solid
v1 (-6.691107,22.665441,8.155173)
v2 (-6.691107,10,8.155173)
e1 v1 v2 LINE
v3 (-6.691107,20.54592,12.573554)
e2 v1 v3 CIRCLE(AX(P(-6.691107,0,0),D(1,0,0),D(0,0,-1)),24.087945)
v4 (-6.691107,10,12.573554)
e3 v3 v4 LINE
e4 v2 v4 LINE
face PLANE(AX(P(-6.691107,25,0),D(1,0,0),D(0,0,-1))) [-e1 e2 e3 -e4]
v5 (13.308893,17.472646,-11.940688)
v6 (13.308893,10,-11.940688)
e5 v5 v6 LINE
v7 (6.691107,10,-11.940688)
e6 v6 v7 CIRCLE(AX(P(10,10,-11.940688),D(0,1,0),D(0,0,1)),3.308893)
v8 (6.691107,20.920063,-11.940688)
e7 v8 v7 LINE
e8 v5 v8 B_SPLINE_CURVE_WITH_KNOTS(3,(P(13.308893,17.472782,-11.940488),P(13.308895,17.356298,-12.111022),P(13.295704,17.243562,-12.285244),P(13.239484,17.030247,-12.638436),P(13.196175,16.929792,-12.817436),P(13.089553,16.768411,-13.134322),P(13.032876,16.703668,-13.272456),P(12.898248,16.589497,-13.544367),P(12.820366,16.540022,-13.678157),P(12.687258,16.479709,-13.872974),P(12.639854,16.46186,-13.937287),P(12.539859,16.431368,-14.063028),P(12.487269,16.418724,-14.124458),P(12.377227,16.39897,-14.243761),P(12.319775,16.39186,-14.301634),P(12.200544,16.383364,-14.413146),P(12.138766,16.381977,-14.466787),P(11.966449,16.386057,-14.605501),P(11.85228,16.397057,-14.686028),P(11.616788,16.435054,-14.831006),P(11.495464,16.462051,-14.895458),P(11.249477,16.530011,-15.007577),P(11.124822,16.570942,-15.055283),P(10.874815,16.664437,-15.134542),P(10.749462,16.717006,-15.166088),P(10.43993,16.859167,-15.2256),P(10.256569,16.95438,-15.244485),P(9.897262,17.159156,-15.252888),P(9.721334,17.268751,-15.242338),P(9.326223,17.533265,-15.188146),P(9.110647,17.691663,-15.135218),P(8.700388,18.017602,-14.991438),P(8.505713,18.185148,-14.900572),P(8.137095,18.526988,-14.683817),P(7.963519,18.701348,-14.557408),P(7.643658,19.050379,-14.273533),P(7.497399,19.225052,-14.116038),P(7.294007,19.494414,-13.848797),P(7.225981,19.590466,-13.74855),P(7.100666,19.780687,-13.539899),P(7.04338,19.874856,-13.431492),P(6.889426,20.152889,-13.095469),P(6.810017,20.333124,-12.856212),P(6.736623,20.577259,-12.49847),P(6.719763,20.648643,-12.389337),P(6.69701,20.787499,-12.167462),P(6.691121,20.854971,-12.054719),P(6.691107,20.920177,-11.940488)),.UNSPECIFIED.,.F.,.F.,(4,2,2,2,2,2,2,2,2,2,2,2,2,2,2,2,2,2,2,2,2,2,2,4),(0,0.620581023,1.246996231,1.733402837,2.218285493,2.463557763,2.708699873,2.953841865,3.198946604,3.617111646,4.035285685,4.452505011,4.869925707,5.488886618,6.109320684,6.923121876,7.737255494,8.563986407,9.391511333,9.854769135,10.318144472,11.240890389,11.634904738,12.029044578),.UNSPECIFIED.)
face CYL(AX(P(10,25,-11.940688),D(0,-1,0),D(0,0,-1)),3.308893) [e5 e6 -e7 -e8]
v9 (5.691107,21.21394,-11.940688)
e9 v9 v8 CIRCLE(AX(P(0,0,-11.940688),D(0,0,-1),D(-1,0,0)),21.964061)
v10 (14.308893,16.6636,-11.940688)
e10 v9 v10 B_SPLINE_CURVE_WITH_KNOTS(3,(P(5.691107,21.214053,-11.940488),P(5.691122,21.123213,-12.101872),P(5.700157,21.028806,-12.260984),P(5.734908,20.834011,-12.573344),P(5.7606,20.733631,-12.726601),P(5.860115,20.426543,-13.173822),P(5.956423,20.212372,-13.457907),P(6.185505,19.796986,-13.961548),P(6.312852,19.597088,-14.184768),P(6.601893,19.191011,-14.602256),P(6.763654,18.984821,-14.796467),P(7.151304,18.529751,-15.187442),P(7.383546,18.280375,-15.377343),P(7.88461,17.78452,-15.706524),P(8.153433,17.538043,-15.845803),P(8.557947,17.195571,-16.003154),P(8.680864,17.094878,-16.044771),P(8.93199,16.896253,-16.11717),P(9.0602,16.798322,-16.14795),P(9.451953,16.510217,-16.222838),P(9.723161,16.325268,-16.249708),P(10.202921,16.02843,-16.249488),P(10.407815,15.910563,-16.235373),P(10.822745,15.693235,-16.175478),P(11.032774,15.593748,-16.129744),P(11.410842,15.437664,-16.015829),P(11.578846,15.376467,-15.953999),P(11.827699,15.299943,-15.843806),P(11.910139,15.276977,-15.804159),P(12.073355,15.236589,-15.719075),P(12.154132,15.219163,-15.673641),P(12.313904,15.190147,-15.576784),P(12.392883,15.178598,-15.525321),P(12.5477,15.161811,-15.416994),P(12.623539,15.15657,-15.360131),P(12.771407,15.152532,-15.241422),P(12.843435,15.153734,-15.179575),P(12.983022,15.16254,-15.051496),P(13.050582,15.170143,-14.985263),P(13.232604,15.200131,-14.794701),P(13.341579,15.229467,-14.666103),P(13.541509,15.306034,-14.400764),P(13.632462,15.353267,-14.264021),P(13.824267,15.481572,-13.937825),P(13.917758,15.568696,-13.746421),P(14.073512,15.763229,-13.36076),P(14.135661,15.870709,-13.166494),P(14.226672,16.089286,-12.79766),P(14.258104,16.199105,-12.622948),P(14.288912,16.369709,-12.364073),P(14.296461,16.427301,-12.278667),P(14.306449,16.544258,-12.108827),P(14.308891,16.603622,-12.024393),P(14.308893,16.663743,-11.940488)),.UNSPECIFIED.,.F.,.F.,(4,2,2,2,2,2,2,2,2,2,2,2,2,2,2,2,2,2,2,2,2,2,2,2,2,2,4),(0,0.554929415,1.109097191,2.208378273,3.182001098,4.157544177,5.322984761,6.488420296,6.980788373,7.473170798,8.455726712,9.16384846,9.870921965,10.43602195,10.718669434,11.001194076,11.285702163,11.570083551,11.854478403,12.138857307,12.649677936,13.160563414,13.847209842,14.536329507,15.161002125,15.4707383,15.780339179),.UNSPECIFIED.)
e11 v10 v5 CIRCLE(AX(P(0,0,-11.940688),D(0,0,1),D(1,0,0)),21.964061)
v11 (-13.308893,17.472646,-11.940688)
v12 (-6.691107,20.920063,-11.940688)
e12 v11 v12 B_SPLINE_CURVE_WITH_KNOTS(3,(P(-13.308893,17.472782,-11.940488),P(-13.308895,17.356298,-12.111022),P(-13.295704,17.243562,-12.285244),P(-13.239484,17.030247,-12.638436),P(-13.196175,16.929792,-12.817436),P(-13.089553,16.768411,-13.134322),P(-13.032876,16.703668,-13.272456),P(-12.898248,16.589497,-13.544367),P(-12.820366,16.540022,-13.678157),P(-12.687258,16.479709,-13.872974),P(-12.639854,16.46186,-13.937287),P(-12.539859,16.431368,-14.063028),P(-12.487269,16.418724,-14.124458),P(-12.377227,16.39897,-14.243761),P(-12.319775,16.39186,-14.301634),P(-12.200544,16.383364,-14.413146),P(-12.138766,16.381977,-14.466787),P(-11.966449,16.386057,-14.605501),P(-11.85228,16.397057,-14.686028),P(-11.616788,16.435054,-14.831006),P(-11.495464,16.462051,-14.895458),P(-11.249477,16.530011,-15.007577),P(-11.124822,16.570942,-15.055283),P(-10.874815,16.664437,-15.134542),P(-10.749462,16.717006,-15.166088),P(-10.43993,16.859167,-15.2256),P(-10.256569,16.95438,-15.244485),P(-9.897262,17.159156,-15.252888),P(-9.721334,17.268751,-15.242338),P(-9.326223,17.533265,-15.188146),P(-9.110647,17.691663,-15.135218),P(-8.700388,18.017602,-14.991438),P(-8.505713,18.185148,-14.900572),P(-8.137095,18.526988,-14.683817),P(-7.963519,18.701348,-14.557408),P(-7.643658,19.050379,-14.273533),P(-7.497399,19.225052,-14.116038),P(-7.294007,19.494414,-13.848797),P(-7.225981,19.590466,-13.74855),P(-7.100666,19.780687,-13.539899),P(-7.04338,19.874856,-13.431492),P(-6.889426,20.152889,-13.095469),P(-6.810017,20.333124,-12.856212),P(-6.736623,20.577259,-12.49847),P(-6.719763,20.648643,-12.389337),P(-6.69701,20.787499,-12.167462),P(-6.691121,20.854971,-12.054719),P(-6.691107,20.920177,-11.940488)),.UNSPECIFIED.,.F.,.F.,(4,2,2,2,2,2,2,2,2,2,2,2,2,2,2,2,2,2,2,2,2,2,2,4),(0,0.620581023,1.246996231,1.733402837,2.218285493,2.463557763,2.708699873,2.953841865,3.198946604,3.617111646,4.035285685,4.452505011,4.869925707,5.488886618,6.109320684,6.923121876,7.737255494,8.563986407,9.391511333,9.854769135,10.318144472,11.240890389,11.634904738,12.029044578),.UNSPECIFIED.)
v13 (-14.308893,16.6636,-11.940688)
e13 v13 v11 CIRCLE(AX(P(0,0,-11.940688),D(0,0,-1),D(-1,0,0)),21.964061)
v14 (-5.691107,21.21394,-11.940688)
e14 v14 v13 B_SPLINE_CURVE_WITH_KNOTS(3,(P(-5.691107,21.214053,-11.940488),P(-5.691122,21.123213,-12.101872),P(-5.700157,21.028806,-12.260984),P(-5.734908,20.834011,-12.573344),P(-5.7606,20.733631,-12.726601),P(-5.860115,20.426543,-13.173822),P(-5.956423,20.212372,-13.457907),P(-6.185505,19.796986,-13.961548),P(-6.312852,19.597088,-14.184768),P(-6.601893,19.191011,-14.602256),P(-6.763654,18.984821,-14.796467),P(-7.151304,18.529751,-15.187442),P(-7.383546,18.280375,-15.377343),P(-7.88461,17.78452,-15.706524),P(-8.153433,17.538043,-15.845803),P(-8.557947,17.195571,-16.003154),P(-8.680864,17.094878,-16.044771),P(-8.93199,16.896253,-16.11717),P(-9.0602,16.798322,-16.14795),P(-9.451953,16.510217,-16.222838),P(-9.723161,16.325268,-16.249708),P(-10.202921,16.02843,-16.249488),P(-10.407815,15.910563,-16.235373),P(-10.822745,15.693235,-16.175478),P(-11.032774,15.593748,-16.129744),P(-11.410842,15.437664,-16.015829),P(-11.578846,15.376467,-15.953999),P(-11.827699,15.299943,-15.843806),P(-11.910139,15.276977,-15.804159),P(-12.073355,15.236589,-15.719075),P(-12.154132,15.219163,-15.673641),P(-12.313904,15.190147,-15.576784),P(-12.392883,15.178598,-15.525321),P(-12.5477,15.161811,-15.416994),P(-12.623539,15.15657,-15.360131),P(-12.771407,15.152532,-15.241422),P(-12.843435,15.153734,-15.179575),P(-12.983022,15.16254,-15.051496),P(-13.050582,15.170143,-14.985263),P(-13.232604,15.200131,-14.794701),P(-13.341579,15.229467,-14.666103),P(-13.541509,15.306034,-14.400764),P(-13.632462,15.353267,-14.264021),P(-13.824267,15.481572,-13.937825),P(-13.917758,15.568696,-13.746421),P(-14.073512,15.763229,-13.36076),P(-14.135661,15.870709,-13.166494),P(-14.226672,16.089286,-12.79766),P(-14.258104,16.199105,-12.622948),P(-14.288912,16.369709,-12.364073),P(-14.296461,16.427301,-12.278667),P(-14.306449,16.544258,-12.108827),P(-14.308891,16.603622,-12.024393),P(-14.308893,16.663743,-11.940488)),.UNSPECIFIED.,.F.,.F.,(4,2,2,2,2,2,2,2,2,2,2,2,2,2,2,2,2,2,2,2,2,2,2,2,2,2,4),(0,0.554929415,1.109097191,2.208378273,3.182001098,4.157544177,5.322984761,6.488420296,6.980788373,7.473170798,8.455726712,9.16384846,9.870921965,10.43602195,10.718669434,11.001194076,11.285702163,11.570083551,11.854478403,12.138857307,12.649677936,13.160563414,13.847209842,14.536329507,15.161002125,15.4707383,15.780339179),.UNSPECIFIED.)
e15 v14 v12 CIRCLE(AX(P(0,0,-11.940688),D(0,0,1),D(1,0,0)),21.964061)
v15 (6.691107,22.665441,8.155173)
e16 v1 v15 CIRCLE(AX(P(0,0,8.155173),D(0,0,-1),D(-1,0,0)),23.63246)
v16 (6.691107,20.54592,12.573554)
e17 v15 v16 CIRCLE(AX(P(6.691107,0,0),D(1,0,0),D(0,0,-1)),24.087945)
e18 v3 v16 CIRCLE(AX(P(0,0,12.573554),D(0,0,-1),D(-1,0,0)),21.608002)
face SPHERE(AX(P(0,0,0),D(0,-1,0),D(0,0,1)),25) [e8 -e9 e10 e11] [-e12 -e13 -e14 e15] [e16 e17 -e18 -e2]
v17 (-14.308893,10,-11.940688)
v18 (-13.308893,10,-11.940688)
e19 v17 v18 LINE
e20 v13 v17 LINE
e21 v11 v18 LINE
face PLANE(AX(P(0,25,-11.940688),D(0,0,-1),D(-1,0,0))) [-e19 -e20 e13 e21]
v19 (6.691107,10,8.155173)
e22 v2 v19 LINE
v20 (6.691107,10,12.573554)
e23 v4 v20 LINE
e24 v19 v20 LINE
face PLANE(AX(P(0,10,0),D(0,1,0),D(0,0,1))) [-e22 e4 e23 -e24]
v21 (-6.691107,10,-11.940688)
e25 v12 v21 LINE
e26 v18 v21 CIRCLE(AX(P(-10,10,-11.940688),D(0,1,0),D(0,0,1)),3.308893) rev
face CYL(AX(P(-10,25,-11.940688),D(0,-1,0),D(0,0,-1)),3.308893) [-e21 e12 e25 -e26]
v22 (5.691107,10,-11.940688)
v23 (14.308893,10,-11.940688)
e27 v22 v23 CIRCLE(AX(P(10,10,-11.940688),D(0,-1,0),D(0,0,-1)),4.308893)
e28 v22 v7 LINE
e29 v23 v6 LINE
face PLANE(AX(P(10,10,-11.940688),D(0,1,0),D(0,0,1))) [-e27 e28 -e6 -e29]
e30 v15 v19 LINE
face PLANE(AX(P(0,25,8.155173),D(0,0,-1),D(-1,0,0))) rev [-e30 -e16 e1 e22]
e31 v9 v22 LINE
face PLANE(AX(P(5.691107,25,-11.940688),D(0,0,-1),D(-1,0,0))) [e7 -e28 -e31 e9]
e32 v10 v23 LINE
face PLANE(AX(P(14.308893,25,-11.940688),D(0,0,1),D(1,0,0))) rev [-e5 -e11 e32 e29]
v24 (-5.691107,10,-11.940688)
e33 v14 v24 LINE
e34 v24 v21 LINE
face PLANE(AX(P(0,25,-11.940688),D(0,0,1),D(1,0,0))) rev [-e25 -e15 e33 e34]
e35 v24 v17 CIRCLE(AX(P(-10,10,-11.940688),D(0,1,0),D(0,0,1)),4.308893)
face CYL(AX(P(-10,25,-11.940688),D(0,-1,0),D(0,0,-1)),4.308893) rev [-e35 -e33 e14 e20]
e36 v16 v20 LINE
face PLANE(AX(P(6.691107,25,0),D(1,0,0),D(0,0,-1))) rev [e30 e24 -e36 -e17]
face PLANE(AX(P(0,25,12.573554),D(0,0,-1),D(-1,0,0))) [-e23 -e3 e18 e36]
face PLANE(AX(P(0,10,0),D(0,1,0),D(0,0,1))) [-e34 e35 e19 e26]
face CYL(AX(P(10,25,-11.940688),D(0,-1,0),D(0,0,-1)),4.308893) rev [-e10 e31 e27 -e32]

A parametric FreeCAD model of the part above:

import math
import FreeCAD as App
import Part
import Sketcher

doc = App.newDocument("Part")
params = doc.addObject("Spreadsheet::Sheet", "Params")
for row, (alias, value) in enumerate([
    ("sketch1_radius", "25 mm"),
    ("revolution_angle", "360 deg"),
    ("sketch2_width", "1 mm"),
], start=1):
    params.set(f"A{row}", alias)
    params.set(f"B{row}", "=" + value)
    params.setAlias(f"B{row}", alias)

body = doc.addObject("PartDesign::Body", "Body")

sketch1 = body.newObject("Sketcher::SketchObject", "Sketch")
sketch1.AttachmentSupport = (doc.getObject("YZ_Plane"), [""])
sketch1.MapMode = "FlatFace"
sketch1.addGeometry([
    Part.LineSegment(App.Vector(-25, 0, 0), App.Vector(25, 0, 0)),
    Part.ArcOfCircle(Part.Circle(App.Vector(0, 0, 0), App.Vector(0, 0, 1), 25), math.radians(0), math.radians(180)),
], False)
sketch1.addConstraint([
    Sketcher.Constraint("Coincident", 0, 1, 1, 2),
    Sketcher.Constraint("Coincident", 1, 1, 0, 2),
    Sketcher.Constraint("Horizontal", 0),
    Sketcher.Constraint("Coincident", 1, 3, -1, 1),
    Sketcher.Constraint("PointOnObject", 0, 1, -1),
    Sketcher.Constraint("Radius", 1, 25.0),
])
sketch1.setExpression("Constraints[5]", "Params.sketch1_radius")
revolution = body.newObject("PartDesign::Revolution", "Revolution")
revolution.Profile = sketch1
revolution.ReferenceAxis = (sketch1, ["H_Axis"])
revolution.setExpression("Angle", "Params.revolution_angle")

sketch2 = body.newObject("Sketcher::SketchObject", "Sketch001")
sketch2.AttachmentSupport = (doc.getObject("XZ_Plane"), [""])
sketch2.MapMode = "FlatFace"
sketch2.AttachmentOffset = App.Placement(App.Vector(0, 0, -10), App.Rotation())
sketch2.addGeometry([
    Part.LineSegment(App.Vector(-14.3, -11.9, 0), App.Vector(-13.3, -11.9, 0)),
    Part.ArcOfCircle(Part.Circle(App.Vector(-10, -11.9, 0), App.Vector(0, 0, 1), 3.3), math.radians(-180), math.radians(0)),
    Part.LineSegment(App.Vector(-6.7, -11.9, 0), App.Vector(-5.7, -11.9, 0)),
    Part.ArcOfCircle(Part.Circle(App.Vector(-10, -11.9, 0), App.Vector(0, 0, 1), 4.3), math.radians(-180), math.radians(0)),
    Part.LineSegment(App.Vector(-6.7, 8.2, 0), App.Vector(-6.7, 12.6, 0)),
    Part.LineSegment(App.Vector(-6.7, 12.6, 0), App.Vector(6.7, 12.6, 0)),
    Part.LineSegment(App.Vector(6.7, 12.6, 0), App.Vector(6.7, 8.2, 0)),
    Part.LineSegment(App.Vector(6.7, 8.2, 0), App.Vector(-6.7, 8.2, 0)),
    Part.ArcOfCircle(Part.Circle(App.Vector(10, -11.9, 0), App.Vector(0, 0, 1), 4.3), math.radians(-180), math.radians(0)),
    Part.LineSegment(App.Vector(5.7, -11.9, 0), App.Vector(6.7, -11.9, 0)),
    Part.ArcOfCircle(Part.Circle(App.Vector(10, -11.9, 0), App.Vector(0, 0, 1), 3.3), math.radians(-180), math.radians(0)),
    Part.LineSegment(App.Vector(13.3, -11.9, 0), App.Vector(14.3, -11.9, 0)),
], False)
sketch2.addConstraint([
    Sketcher.Constraint("Coincident", 0, 2, 1, 1),
    Sketcher.Constraint("Coincident", 1, 2, 2, 1),
    Sketcher.Constraint("Coincident", 2, 2, 3, 2),
    Sketcher.Constraint("Coincident", 3, 1, 0, 1),
    Sketcher.Constraint("Coincident", 4, 2, 5, 1),
    Sketcher.Constraint("Coincident", 5, 2, 6, 1),
    Sketcher.Constraint("Coincident", 6, 2, 7, 1),
    Sketcher.Constraint("Coincident", 7, 2, 4, 1),
    Sketcher.Constraint("Coincident", 8, 1, 9, 1),
    Sketcher.Constraint("Coincident", 9, 2, 10, 1),
    Sketcher.Constraint("Coincident", 10, 2, 11, 1),
    Sketcher.Constraint("Coincident", 11, 2, 8, 2),
    Sketcher.Constraint("Horizontal", 0),
    Sketcher.Constraint("Horizontal", 2),
    Sketcher.Constraint("Vertical", 4),
    Sketcher.Constraint("Horizontal", 5),
    Sketcher.Constraint("Vertical", 6),
    Sketcher.Constraint("Horizontal", 7),
    Sketcher.Constraint("Horizontal", 9),
    Sketcher.Constraint("Horizontal", 11),
    Sketcher.Constraint("Coincident", 3, 3, 1, 3),
    Sketcher.Constraint("Coincident", 10, 3, 8, 3),
    Sketcher.Constraint("Equal", 3, 8),
    Sketcher.Constraint("Equal", 1, 10),
    Sketcher.Constraint("Symmetric", 1, 3, 8, 3, -2),
    Sketcher.Constraint("Horizontal", 10, 3, 0, 2),
    Sketcher.Constraint("Horizontal", 0, 2, 1, 2),
    Sketcher.Constraint("Horizontal", 3, 1, 8, 1),
    Sketcher.Constraint("Horizontal", 9, 2, 10, 2),
    Sketcher.Constraint("Vertical", 1, 2, 4, 2),
    Sketcher.Constraint("Vertical", 6, 2, 9, 2),
    Sketcher.Constraint("DistanceX", 0, 1, 0, 2, 1.0),
    Sketcher.Constraint("DistanceX", 1, 3, -1, 1, 10.0),
    Sketcher.Constraint("Radius", 1, 3.308893),
    Sketcher.Constraint("DistanceY", 4, 1, 4, 2, 4.418381),
    Sketcher.Constraint("DistanceY", 1, 3, -1, 1, 11.940688),
    Sketcher.Constraint("DistanceY", 1, 2, 4, 2, 24.514242),
])
sketch2.setExpression("Constraints[31]", "Params.sketch2_width")
pocket1 = body.newObject("PartDesign::Pocket", "Pocket")
pocket1.Profile = sketch2
pocket1.Type = "ThroughAll"

doc.recompute()
